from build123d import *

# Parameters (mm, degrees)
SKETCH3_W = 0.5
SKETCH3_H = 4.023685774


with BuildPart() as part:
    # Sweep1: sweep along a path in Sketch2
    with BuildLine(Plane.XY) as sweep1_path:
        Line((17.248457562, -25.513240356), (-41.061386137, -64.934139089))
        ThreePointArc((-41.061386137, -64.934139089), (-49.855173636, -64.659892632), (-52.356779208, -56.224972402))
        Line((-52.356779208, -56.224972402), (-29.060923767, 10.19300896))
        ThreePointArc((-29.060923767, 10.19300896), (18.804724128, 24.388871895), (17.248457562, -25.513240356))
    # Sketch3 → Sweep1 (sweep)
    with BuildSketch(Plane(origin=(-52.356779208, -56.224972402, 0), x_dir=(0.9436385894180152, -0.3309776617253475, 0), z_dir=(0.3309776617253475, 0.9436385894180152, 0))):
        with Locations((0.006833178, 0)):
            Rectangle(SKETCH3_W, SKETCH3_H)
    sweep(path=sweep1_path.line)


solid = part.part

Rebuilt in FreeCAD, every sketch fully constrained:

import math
import FreeCAD as App
import Part
import Sketcher
from FreeCAD import Vector
Q = App.Units.Quantity


def add_polygon(sketch, points):
    """Adds a closed chain of lines whose ends are joined by coincident constraints."""
    first, n = sketch.GeometryCount, len(points)
    for a, b in zip(points, points[1:] + points[:1]):
        sketch.addGeometry(Part.LineSegment(App.Vector(*a, 0), App.Vector(*b, 0)), False)
    for i in range(n):
        sketch.addConstraint(Sketcher.Constraint("Coincident", first + i, 2, first + (i + 1) % n, 1))

doc = App.newDocument("Part")
body = doc.addObject("PartDesign::Body", "Body")

# Sketch on an angled plane
sketch1 = body.newObject("Sketcher::SketchObject", "Sketch")
sketch1.Placement = App.Placement(Vector(-52.356779, -56.224972, 0), App.Rotation(Vector(0.943638589, -0.330977662, 0), Vector(0, 0, -0.999999999), Vector(0.330977662, 0.943638589, 0), "ZXY"))
add_polygon(sketch1, [(-0.2, 2), (-0.2, -2), (0.3, -2), (0.3, 2)])  # lines 0-3
sketch1.addConstraint(Sketcher.Constraint("Vertical", 0))
sketch1.addConstraint(Sketcher.Constraint("Horizontal", 1))
sketch1.addConstraint(Sketcher.Constraint("Vertical", 2))
sketch1.addConstraint(Sketcher.Constraint("Horizontal", 3))
sketch1.addConstraint(Sketcher.Constraint("DistanceX", 1, 1, 1, 2, Q("0.5 mm")))
sketch1.addConstraint(Sketcher.Constraint("DistanceY", 0, 2, 0, 1, Q("4.023686 mm")))
sketch1.addConstraint(Sketcher.Constraint("DistanceX", 0, 2, -1, 1, Q("0.243167 mm")))
sketch1.addConstraint(Sketcher.Constraint("DistanceY", 0, 2, -1, 1, Q("2.011843 mm")))

# Sketch on XY plane
sketch2 = body.newObject("Sketcher::SketchObject", "Sketch001")
sketch2.AttachmentSupport = (doc.getObject("XY_Plane"), [""])
sketch2.MapMode = "FlatFace"
sketch2.addGeometry(Part.LineSegment(Vector(17, -26, 0), Vector(-41, -65, 0)), False)
sketch2.addGeometry(Part.ArcOfCircle(Part.Circle(Vector(-45, -59, 0), Vector(0, 0, 1), 8), math.radians(161), math.radians(304)), False)
sketch2.addGeometry(Part.LineSegment(Vector(-52, -56, 0), Vector(-29, 10, 0)), False)
sketch2.addGeometry(Part.ArcOfCircle(Part.Circle(Vector(0, 0, 0), Vector(0, 0, 1), 31), math.radians(-56), math.radians(161)), False)
sketch2.addConstraint(Sketcher.Constraint("Tangent", 0, 2, 1, 2))
sketch2.addConstraint(Sketcher.Constraint("Tangent", 1, 1, 2, 1))
sketch2.addConstraint(Sketcher.Constraint("Tangent", 2, 2, 3, 2))
sketch2.addConstraint(Sketcher.Constraint("Tangent", 3, 1, 0, 1))
sketch2.addConstraint(Sketcher.Constraint("Coincident", 3, 3, -1, 1))
sketch2.addConstraint(Sketcher.Constraint("Radius", 1, Q("7.511663 mm")))
sketch2.addConstraint(Sketcher.Constraint("Radius", 3, Q("30.796667 mm")))
sketch2.addConstraint(Sketcher.Constraint("DistanceX", 1, 3, 0, 2, Q("4.207098 mm")))
sketch2.addConstraint(Sketcher.Constraint("DistanceY", 0, 2, 3, 1, Q("39.420899 mm")))
doc.recompute()

additivepipe = body.newObject("PartDesign::AdditivePipe", "AdditivePipe")
additivepipe.Profile = sketch1
additivepipe.Spine = (sketch2, ["Edge1", "Edge2", "Edge3", "Edge4"])

doc.recompute()
